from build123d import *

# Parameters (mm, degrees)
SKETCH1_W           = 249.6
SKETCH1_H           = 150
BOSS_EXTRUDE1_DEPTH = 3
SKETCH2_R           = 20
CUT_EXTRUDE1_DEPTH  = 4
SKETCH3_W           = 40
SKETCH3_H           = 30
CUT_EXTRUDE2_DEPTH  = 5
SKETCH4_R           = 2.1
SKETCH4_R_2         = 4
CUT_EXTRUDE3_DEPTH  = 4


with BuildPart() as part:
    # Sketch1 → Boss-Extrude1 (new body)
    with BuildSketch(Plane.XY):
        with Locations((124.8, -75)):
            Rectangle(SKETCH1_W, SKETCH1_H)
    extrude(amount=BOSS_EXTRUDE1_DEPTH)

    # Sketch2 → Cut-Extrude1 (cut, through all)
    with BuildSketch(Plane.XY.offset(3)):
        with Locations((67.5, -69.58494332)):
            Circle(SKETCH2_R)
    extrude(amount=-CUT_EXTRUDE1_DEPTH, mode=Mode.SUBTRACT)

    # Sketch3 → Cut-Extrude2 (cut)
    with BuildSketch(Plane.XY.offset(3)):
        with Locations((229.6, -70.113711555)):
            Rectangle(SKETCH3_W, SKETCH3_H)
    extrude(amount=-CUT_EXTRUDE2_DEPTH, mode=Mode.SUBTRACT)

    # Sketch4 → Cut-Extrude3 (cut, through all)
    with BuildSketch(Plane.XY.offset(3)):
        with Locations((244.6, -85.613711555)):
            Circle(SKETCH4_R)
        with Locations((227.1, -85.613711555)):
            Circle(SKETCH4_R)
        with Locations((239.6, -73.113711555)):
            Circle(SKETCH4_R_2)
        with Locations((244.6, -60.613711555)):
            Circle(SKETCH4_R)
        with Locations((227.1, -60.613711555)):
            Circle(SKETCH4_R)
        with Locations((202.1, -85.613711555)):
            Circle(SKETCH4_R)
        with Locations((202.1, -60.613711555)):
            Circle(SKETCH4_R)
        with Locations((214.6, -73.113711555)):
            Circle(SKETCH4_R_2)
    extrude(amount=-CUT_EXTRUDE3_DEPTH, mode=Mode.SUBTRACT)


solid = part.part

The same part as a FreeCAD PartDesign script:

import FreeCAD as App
import Part
import Sketcher
Q = App.Units.Quantity


def add_polygon(sketch, points):
    """Adds a closed chain of lines whose ends are joined by coincident constraints."""
    first, n = sketch.GeometryCount, len(points)
    for a, b in zip(points, points[1:] + points[:1]):
        sketch.addGeometry(Part.LineSegment(App.Vector(*a, 0), App.Vector(*b, 0)), False)
    for i in range(n):
        sketch.addConstraint(Sketcher.Constraint("Coincident", first + i, 2, first + (i + 1) % n, 1))

doc = App.newDocument("Part")
body = doc.addObject("PartDesign::Body", "Body")

sketch1 = body.newObject("Sketcher::SketchObject", "Sketch")
sketch1.AttachmentSupport = (doc.getObject("XY_Plane"), [""])
sketch1.MapMode = "FlatFace"
add_polygon(sketch1, [(0, 0), (0, -150), (250, -150), (250, 0)])
sketch1.addConstraint(Sketcher.Constraint("Vertical", 0))
sketch1.addConstraint(Sketcher.Constraint("Horizontal", 1))
sketch1.addConstraint(Sketcher.Constraint("Vertical", 2))
sketch1.addConstraint(Sketcher.Constraint("Horizontal", 3))
sketch1.addConstraint(Sketcher.Constraint("Coincident", 3, 2, -1, 1))
sketch1.addConstraint(Sketcher.Constraint("DistanceY", 0, 2, 0, 1, Q("150 mm")))
sketch1.addConstraint(Sketcher.Constraint("DistanceX", 1, 1, 1, 2, Q("249.6 mm")))
pad1 = body.newObject("PartDesign::Pad", "Pad")
pad1.Profile = sketch1
pad1.Length = 3

sketch2 = body.newObject("Sketcher::SketchObject", "Sketch001")
sketch2.AttachmentSupport = (doc.getObject("XY_Plane"), [""])
sketch2.MapMode = "FlatFace"
sketch2.AttachmentOffset = App.Placement(App.Vector(0, 0, 3), App.Rotation())
sketch2.addGeometry(Part.Circle(App.Vector(68, -70, 0), App.Vector(0, 0, 1), 20), False)
sketch2.addConstraint(Sketcher.Constraint("Diameter", 0, Q("40 mm")))
sketch2.addConstraint(Sketcher.Constraint("DistanceX", -1, 1, 0, 3, Q("67.5 mm")))
sketch2.addConstraint(Sketcher.Constraint("DistanceY", 0, 3, -1, 1, Q("69.584943 mm")))
pocket1 = body.newObject("PartDesign::Pocket", "Pocket")
pocket1.Profile = sketch2
pocket1.Type = "ThroughAll"

sketch3 = body.newObject("Sketcher::SketchObject", "Sketch002")
sketch3.AttachmentSupport = (doc.getObject("XY_Plane"), [""])
sketch3.MapMode = "FlatFace"
sketch3.AttachmentOffset = App.Placement(App.Vector(0, 0, 3), App.Rotation())
add_polygon(sketch3, [(210, -55), (210, -85), (250, -85), (250, -55)])
sketch3.addConstraint(Sketcher.Constraint("Vertical", 0))
sketch3.addConstraint(Sketcher.Constraint("Horizontal", 1))
sketch3.addConstraint(Sketcher.Constraint("Vertical", 2))
sketch3.addConstraint(Sketcher.Constraint("Horizontal", 3))
sketch3.addConstraint(Sketcher.Constraint("DistanceX", 1, 1, 1, 2, Q("40 mm")))
sketch3.addConstraint(Sketcher.Constraint("DistanceY", 0, 2, 0, 1, Q("30 mm")))
sketch3.addConstraint(Sketcher.Constraint("DistanceX", -1, 1, 0, 2, Q("209.6 mm")))
sketch3.addConstraint(Sketcher.Constraint("DistanceY", 0, 2, -1, 1, Q("85.113712 mm")))
pocket2 = body.newObject("PartDesign::Pocket", "Pocket001")
pocket2.Profile = sketch3
pocket2.Length = 5

sketch4 = body.newObject("Sketcher::SketchObject", "Sketch003")
sketch4.AttachmentSupport = (doc.getObject("XY_Plane"), [""])
sketch4.MapMode = "FlatFace"
sketch4.AttachmentOffset = App.Placement(App.Vector(0, 0, 3), App.Rotation())
sketch4.addGeometry(Part.Circle(App.Vector(244.6, -85.6, 0), App.Vector(0, 0, 1), 2.1), False)
sketch4.addGeometry(Part.Circle(App.Vector(227.1, -85.6, 0), App.Vector(0, 0, 1), 2.1), False)
sketch4.addGeometry(Part.Circle(App.Vector(239.6, -73.1, 0), App.Vector(0, 0, 1), 4), False)
sketch4.addGeometry(Part.Circle(App.Vector(244.6, -60.6, 0), App.Vector(0, 0, 1), 2.1), False)
sketch4.addGeometry(Part.Circle(App.Vector(227.1, -60.6, 0), App.Vector(0, 0, 1), 2.1), False)
sketch4.addGeometry(Part.Circle(App.Vector(202.1, -85.6, 0), App.Vector(0, 0, 1), 2.1), False)
sketch4.addGeometry(Part.Circle(App.Vector(202.1, -60.6, 0), App.Vector(0, 0, 1), 2.1), False)
sketch4.addGeometry(Part.Circle(App.Vector(214.6, -73.1, 0), App.Vector(0, 0, 1), 4), False)
sketch4.addConstraint(Sketcher.Constraint("Equal", 0, 1))
sketch4.addConstraint(Sketcher.Constraint("Equal", 1, 3))
sketch4.addConstraint(Sketcher.Constraint("Equal", 3, 4))
sketch4.addConstraint(Sketcher.Constraint("Equal", 4, 5))
sketch4.addConstraint(Sketcher.Constraint("Equal", 5, 6))
sketch4.addConstraint(Sketcher.Constraint("Equal", 2, 7))
sketch4.addConstraint(Sketcher.Constraint("Horizontal", 0, 3, 1, 3))
sketch4.addConstraint(Sketcher.Constraint("Horizontal", 3, 3, 4, 3))
sketch4.addConstraint(Sketcher.Constraint("Horizontal", 1, 3, 5, 3))
sketch4.addConstraint(Sketcher.Constraint("Horizontal", 4, 3, 6, 3))
sketch4.addConstraint(Sketcher.Constraint("Horizontal", 2, 3, 7, 3))
sketch4.addConstraint(Sketcher.Constraint("Vertical", 0, 3, 3, 3))
sketch4.addConstraint(Sketcher.Constraint("Vertical", 1, 3, 4, 3))
sketch4.addConstraint(Sketcher.Constraint("Vertical", 5, 3, 6, 3))
sketch4.addConstraint(Sketcher.Constraint("Diameter", 2, Q("8 mm")))
sketch4.addConstraint(Sketcher.Constraint("Diameter", 0, Q("4.2 mm")))
sketch4.addConstraint(Sketcher.Constraint("DistanceX", 2, 3, 0, 3, Q("5 mm")))
sketch4.addConstraint(Sketcher.Constraint("DistanceY", 0, 3, 3, 3, Q("25 mm")))
sketch4.addConstraint(Sketcher.Constraint("DistanceX", 5, 3, 1, 3, Q("25 mm")))
sketch4.addConstraint(Sketcher.Constraint("DistanceX", 7, 3, 2, 3, Q("25 mm")))
sketch4.addConstraint(Sketcher.Constraint("DistanceX", -1, 1, 0, 3, Q("244.6 mm")))
sketch4.addConstraint(Sketcher.Constraint("DistanceX", -1, 1, 1, 3, Q("227.1 mm")))
sketch4.addConstraint(Sketcher.Constraint("DistanceY", 0, 3, 2, 3, Q("12.5 mm")))
sketch4.addConstraint(Sketcher.Constraint("DistanceY", 0, 3, -1, 1, Q("85.613712 mm")))
pocket3 = body.newObject("PartDesign::Pocket", "Pocket002")
pocket3.Profile = sketch4
pocket3.Type = "ThroughAll"

doc.recompute()
